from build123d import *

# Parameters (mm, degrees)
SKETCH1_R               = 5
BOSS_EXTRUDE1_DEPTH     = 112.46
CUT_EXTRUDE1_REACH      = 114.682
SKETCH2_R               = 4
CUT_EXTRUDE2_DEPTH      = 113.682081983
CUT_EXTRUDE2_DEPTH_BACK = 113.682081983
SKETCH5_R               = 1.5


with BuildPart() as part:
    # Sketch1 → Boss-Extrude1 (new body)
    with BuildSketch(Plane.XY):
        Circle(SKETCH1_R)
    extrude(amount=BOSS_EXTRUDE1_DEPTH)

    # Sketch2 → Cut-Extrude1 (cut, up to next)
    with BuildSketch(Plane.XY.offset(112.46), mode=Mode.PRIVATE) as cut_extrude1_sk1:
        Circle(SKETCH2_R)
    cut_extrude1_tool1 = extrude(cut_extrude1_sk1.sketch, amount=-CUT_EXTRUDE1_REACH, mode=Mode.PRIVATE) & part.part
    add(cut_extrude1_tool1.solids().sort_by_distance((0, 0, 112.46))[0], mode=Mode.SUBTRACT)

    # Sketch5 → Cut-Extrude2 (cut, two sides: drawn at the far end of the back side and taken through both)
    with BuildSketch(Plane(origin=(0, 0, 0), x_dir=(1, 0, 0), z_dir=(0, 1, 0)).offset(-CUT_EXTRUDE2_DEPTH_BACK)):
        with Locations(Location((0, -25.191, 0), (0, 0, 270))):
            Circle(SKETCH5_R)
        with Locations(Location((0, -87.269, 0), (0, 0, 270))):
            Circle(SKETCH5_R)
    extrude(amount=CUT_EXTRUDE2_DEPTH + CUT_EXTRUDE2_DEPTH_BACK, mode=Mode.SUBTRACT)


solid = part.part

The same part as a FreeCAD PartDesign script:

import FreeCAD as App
import Part
import Sketcher

V = App.Vector
Q = App.Units.Quantity

doc = App.newDocument("Part")
params = doc.addObject("Spreadsheet::Sheet", "Params")
for row, (alias, value) in enumerate([
    ("sketch1_diameter", "10 mm"),
    ("pad1_length", "112.46 mm"),
    ("sketch2_diameter", "8 mm"),
    ("sketch3_diameter", "3 mm"),
], start=1):
    params.set(f"A{row}", alias)
    params.set(f"B{row}", "=" + value)
    params.setAlias(f"B{row}", alias)

body = doc.addObject("PartDesign::Body", "Body")

sketch1 = body.newObject("Sketcher::SketchObject", "Sketch")
sketch1.AttachmentSupport = (doc.getObject("XY_Plane"), [""])
sketch1.MapMode = "FlatFace"
sketch1.addGeometry(Part.Circle(V(0, 0, 0), V(0, 0, 1), 5), False)
sketch1.addConstraint([
    Sketcher.Constraint("Coincident", 0, 3, -1, 1),
    Sketcher.Constraint("Diameter", 0, Q("10 mm")),
])
sketch1.setExpression("Constraints[1]", "Params.sketch1_diameter")
pad1 = body.newObject("PartDesign::Pad", "Pad")
pad1.Profile = sketch1
pad1.setExpression("Length", "Params.pad1_length")

sketch2 = body.newObject("Sketcher::SketchObject", "Sketch001")
sketch2.AttachmentSupport = (doc.getObject("XY_Plane"), [""])
sketch2.MapMode = "FlatFace"
sketch2.AttachmentOffset = App.Placement(V(0, 0, 112.46), App.Rotation())
sketch2.addGeometry(Part.Circle(V(0, 0, 0), V(0, 0, 1), 4), False)
sketch2.addConstraint([
    Sketcher.Constraint("Coincident", 0, 3, -1, 1),
    Sketcher.Constraint("Diameter", 0, Q("8 mm")),
])
sketch2.setExpression("Constraints[1]", "Params.sketch2_diameter")
pocket1 = body.newObject("PartDesign::Pocket", "Pocket")
pocket1.Profile = sketch2
pocket1.Type = "UpToFirst"

sketch3 = body.newObject("Sketcher::SketchObject", "Sketch002")
sketch3.AttachmentSupport = (doc.getObject("XZ_Plane"), [""])
sketch3.MapMode = "FlatFace"
sketch3.addGeometry([
    Part.Circle(V(0, 25.2, 0), V(0, 0, 1), 1.5),
    Part.Circle(V(0, 87.3, 0), V(0, 0, 1), 1.5),
], False)
sketch3.addConstraint([
    Sketcher.Constraint("Equal", 0, 1),
    Sketcher.Constraint("PointOnObject", 0, 3, -2),
    Sketcher.Constraint("PointOnObject", 1, 3, -2),
    Sketcher.Constraint("Diameter", 0, Q("3 mm")),
    Sketcher.Constraint("DistanceY", -1, 1, 0, 3, Q("25.191 mm")),
    Sketcher.Constraint("DistanceY", -1, 1, 1, 3, Q("87.269 mm")),
])
sketch3.setExpression("Constraints[3]", "Params.sketch3_diameter")
pocket2 = body.newObject("PartDesign::Pocket", "Pocket001")
pocket2.Profile = sketch3
pocket2.Type = "ThroughAll"
pocket2.Midplane = True

doc.recompute()
